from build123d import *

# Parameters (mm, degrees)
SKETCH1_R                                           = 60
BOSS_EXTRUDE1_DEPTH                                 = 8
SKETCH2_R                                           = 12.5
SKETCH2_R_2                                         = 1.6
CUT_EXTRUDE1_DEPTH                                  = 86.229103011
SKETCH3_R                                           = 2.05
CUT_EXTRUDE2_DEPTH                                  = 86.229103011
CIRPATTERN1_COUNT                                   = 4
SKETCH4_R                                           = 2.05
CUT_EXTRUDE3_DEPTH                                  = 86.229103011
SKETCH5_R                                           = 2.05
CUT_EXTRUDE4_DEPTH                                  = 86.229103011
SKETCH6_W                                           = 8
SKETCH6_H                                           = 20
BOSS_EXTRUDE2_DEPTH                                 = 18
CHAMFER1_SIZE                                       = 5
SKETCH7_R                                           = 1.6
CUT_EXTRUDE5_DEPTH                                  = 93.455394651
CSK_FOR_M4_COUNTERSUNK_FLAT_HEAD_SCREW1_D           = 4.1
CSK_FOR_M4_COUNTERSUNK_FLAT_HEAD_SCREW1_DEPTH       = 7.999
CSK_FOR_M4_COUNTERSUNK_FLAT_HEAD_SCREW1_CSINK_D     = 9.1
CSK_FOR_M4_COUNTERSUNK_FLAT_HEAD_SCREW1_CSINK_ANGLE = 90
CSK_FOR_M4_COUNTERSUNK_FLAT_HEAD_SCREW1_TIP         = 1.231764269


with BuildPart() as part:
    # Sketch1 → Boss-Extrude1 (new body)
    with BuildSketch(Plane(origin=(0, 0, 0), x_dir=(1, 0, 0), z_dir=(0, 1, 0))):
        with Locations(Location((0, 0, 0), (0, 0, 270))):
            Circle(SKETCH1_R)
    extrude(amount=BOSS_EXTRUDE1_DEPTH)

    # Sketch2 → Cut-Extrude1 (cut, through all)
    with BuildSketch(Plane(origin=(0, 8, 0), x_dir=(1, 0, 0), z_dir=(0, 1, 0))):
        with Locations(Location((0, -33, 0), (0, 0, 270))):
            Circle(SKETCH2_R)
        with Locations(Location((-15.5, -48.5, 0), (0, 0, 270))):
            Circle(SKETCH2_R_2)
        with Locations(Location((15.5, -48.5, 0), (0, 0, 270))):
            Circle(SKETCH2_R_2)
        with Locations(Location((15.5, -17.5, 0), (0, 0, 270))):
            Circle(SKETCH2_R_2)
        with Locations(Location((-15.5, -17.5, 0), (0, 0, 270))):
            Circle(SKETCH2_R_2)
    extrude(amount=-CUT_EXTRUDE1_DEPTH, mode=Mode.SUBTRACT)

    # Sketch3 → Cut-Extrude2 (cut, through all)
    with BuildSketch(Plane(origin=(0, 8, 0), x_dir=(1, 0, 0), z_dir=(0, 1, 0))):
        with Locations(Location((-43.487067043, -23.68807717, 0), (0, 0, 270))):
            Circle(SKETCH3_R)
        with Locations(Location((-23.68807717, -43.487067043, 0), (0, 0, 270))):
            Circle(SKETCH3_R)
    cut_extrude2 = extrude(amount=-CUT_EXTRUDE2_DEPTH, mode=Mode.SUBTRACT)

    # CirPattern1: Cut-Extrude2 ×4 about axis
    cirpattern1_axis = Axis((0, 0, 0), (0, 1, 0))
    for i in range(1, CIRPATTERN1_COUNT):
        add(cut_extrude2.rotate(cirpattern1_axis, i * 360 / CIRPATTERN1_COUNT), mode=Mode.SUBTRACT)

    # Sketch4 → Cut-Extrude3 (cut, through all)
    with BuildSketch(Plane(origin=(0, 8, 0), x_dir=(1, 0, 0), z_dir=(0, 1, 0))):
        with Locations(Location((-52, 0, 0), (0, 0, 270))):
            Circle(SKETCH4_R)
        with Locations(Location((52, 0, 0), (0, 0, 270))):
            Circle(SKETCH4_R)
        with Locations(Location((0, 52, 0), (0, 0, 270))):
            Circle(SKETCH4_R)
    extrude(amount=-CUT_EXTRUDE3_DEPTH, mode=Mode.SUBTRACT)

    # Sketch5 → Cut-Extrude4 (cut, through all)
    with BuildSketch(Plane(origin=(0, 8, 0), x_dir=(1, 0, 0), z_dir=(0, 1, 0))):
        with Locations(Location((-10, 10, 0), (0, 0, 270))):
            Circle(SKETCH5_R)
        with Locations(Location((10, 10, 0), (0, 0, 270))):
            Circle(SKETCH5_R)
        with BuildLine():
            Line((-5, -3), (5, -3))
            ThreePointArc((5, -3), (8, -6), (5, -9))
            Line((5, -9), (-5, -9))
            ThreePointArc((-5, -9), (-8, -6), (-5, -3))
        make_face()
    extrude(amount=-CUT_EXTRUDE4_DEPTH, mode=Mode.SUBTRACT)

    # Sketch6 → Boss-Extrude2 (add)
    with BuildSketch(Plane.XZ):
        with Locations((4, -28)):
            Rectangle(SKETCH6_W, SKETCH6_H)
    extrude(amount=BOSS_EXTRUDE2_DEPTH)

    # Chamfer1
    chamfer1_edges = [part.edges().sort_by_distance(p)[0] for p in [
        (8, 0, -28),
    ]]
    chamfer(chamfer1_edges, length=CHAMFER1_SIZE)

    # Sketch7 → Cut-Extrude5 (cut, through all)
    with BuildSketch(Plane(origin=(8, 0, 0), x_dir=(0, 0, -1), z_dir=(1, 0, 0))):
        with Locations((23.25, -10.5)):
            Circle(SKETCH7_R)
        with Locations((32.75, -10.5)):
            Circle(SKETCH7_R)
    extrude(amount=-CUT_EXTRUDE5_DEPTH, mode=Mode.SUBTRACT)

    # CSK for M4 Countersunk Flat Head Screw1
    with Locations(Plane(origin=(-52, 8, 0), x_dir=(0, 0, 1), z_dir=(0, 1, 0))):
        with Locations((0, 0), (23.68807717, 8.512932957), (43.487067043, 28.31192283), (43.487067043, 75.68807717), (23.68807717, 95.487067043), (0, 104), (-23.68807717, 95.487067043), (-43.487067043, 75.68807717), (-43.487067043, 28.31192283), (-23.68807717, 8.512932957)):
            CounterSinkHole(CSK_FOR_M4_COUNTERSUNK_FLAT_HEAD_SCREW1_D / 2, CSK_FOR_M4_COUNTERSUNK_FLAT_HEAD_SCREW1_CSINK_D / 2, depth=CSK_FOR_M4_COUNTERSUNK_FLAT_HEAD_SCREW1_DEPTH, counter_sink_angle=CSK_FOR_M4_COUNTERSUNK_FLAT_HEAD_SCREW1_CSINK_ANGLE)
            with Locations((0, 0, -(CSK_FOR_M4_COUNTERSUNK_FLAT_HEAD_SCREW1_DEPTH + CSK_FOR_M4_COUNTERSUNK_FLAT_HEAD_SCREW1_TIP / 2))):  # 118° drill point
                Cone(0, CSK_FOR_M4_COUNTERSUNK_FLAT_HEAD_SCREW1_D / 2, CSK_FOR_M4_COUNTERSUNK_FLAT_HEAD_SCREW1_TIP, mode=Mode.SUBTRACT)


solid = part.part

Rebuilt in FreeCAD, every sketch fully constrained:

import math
import FreeCAD as App
import Part
import Sketcher
from FreeCAD import Vector
Q = App.Units.Quantity


def edges_at(feature, points):
    """Names of the edges that pass closest to the given points."""
    edges = feature.Shape.Edges
    near = lambda p: min(range(len(edges)), key=lambda i: edges[i].distToShape(Part.Vertex(*p))[0])
    return sorted({f"Edge{near(p) + 1}" for p in points})


def add_polygon(sketch, points):
    """Adds a closed chain of lines whose ends are joined by coincident constraints."""
    first, n = sketch.GeometryCount, len(points)
    for a, b in zip(points, points[1:] + points[:1]):
        sketch.addGeometry(Part.LineSegment(App.Vector(*a, 0), App.Vector(*b, 0)), False)
    for i in range(n):
        sketch.addConstraint(Sketcher.Constraint("Coincident", first + i, 2, first + (i + 1) % n, 1))

doc = App.newDocument("Part")
params = doc.addObject("Spreadsheet::Sheet", "Params")
for row, (alias, value) in enumerate([
    ("sketch1_diameter", "120 mm"),
    ("pad1_length", "8 mm"),
    ("sketch2_diameter", "25 mm"),
    ("sketch2_diameter2", "3.2 mm"),
    ("sketch3_diameter", "4.1 mm"),
    ("sketch4_diameter", "4.1 mm"),
    ("sketch5_radius", "3 mm"),
    ("sketch5_diameter", "4.1 mm"),
    ("sketch5_width", "10 mm"),
    ("sketch6_width", "8 mm"),
    ("sketch6_height", "20 mm"),
    ("pad2_length", "18 mm"),
    ("chamfer_size", "5 mm"),
    ("sketch7_diameter", "3.2 mm"),
    ("sketch8_diameter", "4.1 mm"),
    ("hole_diameter", "4.1 mm"),
    ("hole_depth", "7.999 mm"),
    ("hole_csink_diameter", "9.1 mm"),
], start=1):
    params.set(f"A{row}", alias)
    params.set(f"B{row}", "=" + value)
    params.setAlias(f"B{row}", alias)

body = doc.addObject("PartDesign::Body", "Body")

sketch1 = doc.addObject("Sketcher::SketchObject", "Sketch")
body.addObject(sketch1)
sketch1.AttachmentSupport = (doc.XZ_Plane, [""])
sketch1.MapMode = "FlatFace"
sketch1.addGeometry(Part.Circle(Vector(0, 0, 0), Vector(0, 0, 1), 60), False)
sketch1.addConstraint([
    Sketcher.Constraint("Coincident", 0, 3, -1, 1),
    Sketcher.Constraint("Diameter", 0, Q("120 mm")),
])
sketch1.setExpression("Constraints[1]", "Params.sketch1_diameter")
pad1 = doc.addObject("PartDesign::Pad", "Pad")
body.addObject(pad1)
pad1.Profile = sketch1
pad1.setExpression("Length", "Params.pad1_length")
pad1.Reversed = True

sketch2 = doc.addObject("Sketcher::SketchObject", "Sketch001")
body.addObject(sketch2)
sketch2.AttachmentSupport = (doc.XZ_Plane, [""])
sketch2.MapMode = "FlatFace"
sketch2.AttachmentOffset = App.Placement(Vector(0, 0, -8), App.Rotation())
sketch2.addGeometry([
    Part.Circle(Vector(0, 33, 0), Vector(0, 0, 1), 12.5),
    Part.Circle(Vector(-15.5, 48.5, 0), Vector(0, 0, 1), 1.6),
    Part.Circle(Vector(15.5, 48.5, 0), Vector(0, 0, 1), 1.6),
    Part.Circle(Vector(15.5, 17.5, 0), Vector(0, 0, 1), 1.6),
    Part.Circle(Vector(-15.5, 17.5, 0), Vector(0, 0, 1), 1.6),
], False)
sketch2.addConstraint([
    Sketcher.Constraint("Equal", 1, 2),
    Sketcher.Constraint("Equal", 2, 3),
    Sketcher.Constraint("Equal", 3, 4),
    Sketcher.Constraint("Symmetric", 1, 3, 2, 3, -2),
    Sketcher.Constraint("Symmetric", 3, 3, 4, 3, -2),
    Sketcher.Constraint("PointOnObject", 0, 3, -2),
    Sketcher.Constraint("Vertical", 2, 3, 3, 3),
    Sketcher.Constraint("Diameter", 0, Q("25 mm")),
    Sketcher.Constraint("Diameter", 1, Q("3.2 mm")),
    Sketcher.Constraint("DistanceY", -1, 1, 0, 3, Q("33 mm")),
    Sketcher.Constraint("DistanceX", 1, 3, 2, 3, Q("31 mm")),
    Sketcher.Constraint("DistanceY", 3, 3, 2, 3, Q("31 mm")),
    Sketcher.Constraint("DistanceY", -1, 1, 1, 3, Q("48.5 mm")),
])
sketch2.setExpression("Constraints[7]", "Params.sketch2_diameter")
sketch2.setExpression("Constraints[8]", "Params.sketch2_diameter2")
pocket1 = doc.addObject("PartDesign::Pocket", "Pocket")
body.addObject(pocket1)
pocket1.Profile = sketch2
pocket1.Type = "ThroughAll"
pocket1.Reversed = True

sketch3 = doc.addObject("Sketcher::SketchObject", "Sketch002")
body.addObject(sketch3)
sketch3.AttachmentSupport = (doc.XZ_Plane, [""])
sketch3.MapMode = "FlatFace"
sketch3.AttachmentOffset = App.Placement(Vector(0, 0, -8), App.Rotation())
sketch3.addGeometry([
    Part.Circle(Vector(-43.5, 23.7, 0), Vector(0, 0, 1), 2),
    Part.Circle(Vector(-23.7, 43.5, 0), Vector(0, 0, 1), 2),
], False)
sketch3.addConstraint([
    Sketcher.Constraint("Equal", 0, 1),
    Sketcher.Constraint("Diameter", 0, Q("4.1 mm")),
    Sketcher.Constraint("DistanceX", 0, 3, 1, 3, Q("19.79899 mm")),
    Sketcher.Constraint("DistanceY", 0, 3, 1, 3, Q("19.79899 mm")),
    Sketcher.Constraint("DistanceX", 0, 3, -1, 1, Q("43.487067 mm")),
    Sketcher.Constraint("DistanceY", -1, 1, 0, 3, Q("23.688077 mm")),
])
sketch3.setExpression("Constraints[1]", "Params.sketch3_diameter")
pocket2 = doc.addObject("PartDesign::Pocket", "Pocket001")
body.addObject(pocket2)
pocket2.Profile = sketch3
pocket2.Type = "ThroughAll"
pocket2.Reversed = True
doc.recompute()

polarpattern = doc.addObject("PartDesign::PolarPattern", "PolarPattern")
body.addObject(polarpattern)
polarpattern.Originals = [pocket2]
polarpattern.Axis = (doc.Y_Axis, [""])
polarpattern.Angle = 360
polarpattern.Occurrences = 4
body.Tip = polarpattern

sketch4 = doc.addObject("Sketcher::SketchObject", "Sketch003")
body.addObject(sketch4)
sketch4.AttachmentSupport = (doc.XZ_Plane, [""])
sketch4.MapMode = "FlatFace"
sketch4.AttachmentOffset = App.Placement(Vector(0, 0, -8), App.Rotation())
sketch4.addGeometry([
    Part.Circle(Vector(-52, 0, 0), Vector(0, 0, 1), 2),
    Part.Circle(Vector(52, 0, 0), Vector(0, 0, 1), 2),
    Part.Circle(Vector(0, -52, 0), Vector(0, 0, 1), 2),
], False)
sketch4.addConstraint([
    Sketcher.Constraint("Equal", 0, 1),
    Sketcher.Constraint("Equal", 1, 2),
    Sketcher.Constraint("Symmetric", 0, 3, 1, 3, -1, 1),
    Sketcher.Constraint("PointOnObject", 0, 3, -1),
    Sketcher.Constraint("PointOnObject", 2, 3, -2),
    Sketcher.Constraint("Diameter", 0, Q("4.1 mm")),
    Sketcher.Constraint("DistanceX", 0, 3, -1, 1, Q("52 mm")),
    Sketcher.Constraint("DistanceY", 2, 3, -1, 1, Q("52 mm")),
])
sketch4.setExpression("Constraints[5]", "Params.sketch4_diameter")
pocket3 = doc.addObject("PartDesign::Pocket", "Pocket002")
body.addObject(pocket3)
pocket3.Profile = sketch4
pocket3.Type = "ThroughAll"
pocket3.Reversed = True

sketch5 = doc.addObject("Sketcher::SketchObject", "Sketch004")
body.addObject(sketch5)
sketch5.AttachmentSupport = (doc.XZ_Plane, [""])
sketch5.MapMode = "FlatFace"
sketch5.AttachmentOffset = App.Placement(Vector(0, 0, -8), App.Rotation())
sketch5.addGeometry([
    Part.Circle(Vector(-10, -10, 0), Vector(0, 0, 1), 2),
    Part.Circle(Vector(10, -10, 0), Vector(0, 0, 1), 2),
    Part.LineSegment(Vector(5, 3, 0), Vector(-5, 3, 0)),
    Part.ArcOfCircle(Part.Circle(Vector(-5, 6, 0), Vector(0, 0, 1), 3), math.radians(90), math.radians(270)),
    Part.LineSegment(Vector(-5, 9, 0), Vector(5, 9, 0)),
    Part.ArcOfCircle(Part.Circle(Vector(5, 6, 0), Vector(0, 0, 1), 3), math.radians(-90), math.radians(90)),
], False)
sketch5.addConstraint([
    Sketcher.Constraint("Tangent", 2, 2, 3, 2),
    Sketcher.Constraint("Tangent", 3, 1, 4, 1),
    Sketcher.Constraint("Tangent", 4, 2, 5, 2),
    Sketcher.Constraint("Tangent", 5, 1, 2, 1),
    Sketcher.Constraint("Horizontal", 2),
    Sketcher.Constraint("Horizontal", 4),
    Sketcher.Constraint("Equal", 0, 1),
    Sketcher.Constraint("Symmetric", 0, 3, 1, 3, -2),
    Sketcher.Constraint("Radius", 3, Q("3 mm")),
    Sketcher.Constraint("Diameter", 0, Q("4.1 mm")),
    Sketcher.Constraint("DistanceX", 2, 2, 2, 1, Q("10 mm")),
    Sketcher.Constraint("DistanceX", 0, 3, -1, 1, Q("10 mm")),
    Sketcher.Constraint("DistanceY", 0, 3, -1, 1, Q("10 mm")),
    Sketcher.Constraint("DistanceX", 3, 3, -1, 1, Q("5 mm")),
    Sketcher.Constraint("DistanceY", -1, 1, 3, 3, Q("6 mm")),
])
sketch5.setExpression("Constraints[8]", "Params.sketch5_radius")
sketch5.setExpression("Constraints[9]", "Params.sketch5_diameter")
sketch5.setExpression("Constraints[10]", "Params.sketch5_width")
pocket4 = doc.addObject("PartDesign::Pocket", "Pocket003")
body.addObject(pocket4)
pocket4.Profile = sketch5
pocket4.Type = "ThroughAll"
pocket4.Reversed = True

sketch6 = doc.addObject("Sketcher::SketchObject", "Sketch005")
body.addObject(sketch6)
sketch6.AttachmentSupport = (doc.XZ_Plane, [""])
sketch6.MapMode = "FlatFace"
add_polygon(sketch6, [(0, -18), (0, -38), (8, -38), (8, -18)])
sketch6.addConstraint([
    Sketcher.Constraint("Vertical", 0),
    Sketcher.Constraint("Horizontal", 1),
    Sketcher.Constraint("Vertical", 2),
    Sketcher.Constraint("Horizontal", 3),
    Sketcher.Constraint("PointOnObject", 0, 2, -2),
    Sketcher.Constraint("DistanceX", 1, 1, 1, 2, Q("8 mm")),
    Sketcher.Constraint("DistanceY", 0, 2, 0, 1, Q("20 mm")),
    Sketcher.Constraint("DistanceY", 0, 2, -1, 1, Q("38 mm")),
])
sketch6.setExpression("Constraints[9]", "Params.sketch6_width")
sketch6.setExpression("Constraints[10]", "Params.sketch6_height")
pad2 = doc.addObject("PartDesign::Pad", "Pad001")
body.addObject(pad2)
pad2.Profile = sketch6
pad2.setExpression("Length", "Params.pad2_length")
doc.recompute()

chamfer = doc.addObject("PartDesign::Chamfer", "Chamfer")
body.addObject(chamfer)
chamfer.Base = (pad2, edges_at(pad2, [(8, 0, -28)]))
chamfer.setExpression("Size", "Params.chamfer_size")

sketch7 = doc.addObject("Sketcher::SketchObject", "Sketch006")
body.addObject(sketch7)
sketch7.AttachmentSupport = (doc.YZ_Plane, [""])
sketch7.MapMode = "FlatFace"
sketch7.AttachmentOffset = App.Placement(Vector(0, 0, 8), App.Rotation())
sketch7.addGeometry([
    Part.Circle(Vector(-10.5, -23.2, 0), Vector(0, 0, 1), 1.6),
    Part.Circle(Vector(-10.5, -32.8, 0), Vector(0, 0, 1), 1.6),
], False)
sketch7.addConstraint([
    Sketcher.Constraint("Equal", 0, 1),
    Sketcher.Constraint("Vertical", 0, 3, 1, 3),
    Sketcher.Constraint("Diameter", 0, Q("3.2 mm")),
    Sketcher.Constraint("DistanceX", 0, 3, -1, 1, Q("10.5 mm")),
    Sketcher.Constraint("DistanceY", 1, 3, 0, 3, Q("9.5 mm")),
    Sketcher.Constraint("DistanceY", 0, 3, -1, 1, Q("23.25 mm")),
])
sketch7.setExpression("Constraints[2]", "Params.sketch7_diameter")
pocket5 = doc.addObject("PartDesign::Pocket", "Pocket004")
body.addObject(pocket5)
pocket5.Profile = sketch7
pocket5.Type = "ThroughAll"

sketch8 = doc.addObject("Sketcher::SketchObject", "Sketch007")
body.addObject(sketch8)
sketch8.AttachmentSupport = (doc.XZ_Plane, [""])
sketch8.MapMode = "FlatFace"
sketch8.AttachmentOffset = App.Placement(Vector(0, 0, -8), App.Rotation())
sketch8.addGeometry([
    Part.Circle(Vector(-52, 0, 0), Vector(0, 0, 1), 2),
    Part.Circle(Vector(-43.5, 23.7, 0), Vector(0, 0, 1), 2),
    Part.Circle(Vector(-23.7, 43.5, 0), Vector(0, 0, 1), 2),
    Part.Circle(Vector(23.7, 43.5, 0), Vector(0, 0, 1), 2),
    Part.Circle(Vector(43.5, 23.7, 0), Vector(0, 0, 1), 2),
    Part.Circle(Vector(52, 0, 0), Vector(0, 0, 1), 2),
    Part.Circle(Vector(43.5, -23.7, 0), Vector(0, 0, 1), 2),
    Part.Circle(Vector(23.7, -43.5, 0), Vector(0, 0, 1), 2),
    Part.Circle(Vector(-23.7, -43.5, 0), Vector(0, 0, 1), 2),
    Part.Circle(Vector(-43.5, -23.7, 0), Vector(0, 0, 1), 2),
], False)
sketch8.addConstraint([
    Sketcher.Constraint("Equal", 0, 1),
    Sketcher.Constraint("Equal", 1, 2),
    Sketcher.Constraint("Equal", 2, 3),
    Sketcher.Constraint("Equal", 3, 4),
    Sketcher.Constraint("Equal", 4, 5),
    Sketcher.Constraint("Equal", 5, 6),
    Sketcher.Constraint("Equal", 6, 7),
    Sketcher.Constraint("Equal", 7, 8),
    Sketcher.Constraint("Equal", 8, 9),
    Sketcher.Constraint("Symmetric", 0, 3, 5, 3, -1, 1),
    Sketcher.Constraint("Symmetric", 1, 3, 6, 3, -1, 1),
    Sketcher.Constraint("Symmetric", 2, 3, 7, 3, -1, 1),
    Sketcher.Constraint("Symmetric", 3, 3, 8, 3, -1, 1),
    Sketcher.Constraint("Symmetric", 4, 3, 9, 3, -1, 1),
    Sketcher.Constraint("Symmetric", 2, 3, 3, 3, -2),
    Sketcher.Constraint("Symmetric", 1, 3, 4, 3, -2),
    Sketcher.Constraint("PointOnObject", 0, 3, -1),
    Sketcher.Constraint("Diameter", 0, Q("4.1 mm")),
    Sketcher.Constraint("DistanceX", 0, 3, -1, 1, Q("52 mm")),
    Sketcher.Constraint("DistanceX", 1, 3, 2, 3, Q("19.79899 mm")),
    Sketcher.Constraint("DistanceY", 1, 3, 2, 3, Q("19.79899 mm")),
    Sketcher.Constraint("DistanceX", 1, 3, -1, 1, Q("43.487067 mm")),
    Sketcher.Constraint("DistanceY", -1, 1, 1, 3, Q("23.688077 mm")),
])
sketch8.setExpression("Constraints[17]", "Params.sketch8_diameter")
doc.recompute()
hole = doc.addObject("PartDesign::Hole", "Hole")
body.addObject(hole)
hole.Profile = sketch8
hole.ThreadType = "None"
hole.setExpression("Diameter", "Params.hole_diameter")
hole.DepthType = "Dimension"
hole.setExpression("Depth", "Params.hole_depth")
hole.DrillPoint = "Angled"
hole.DrillPointAngle = 118
hole.HoleCutType = "Countersink"
hole.setExpression("HoleCutDiameter", "Params.hole_csink_diameter")
hole.HoleCutCountersinkAngle = 90
hole.Reversed = True

doc.recompute()
